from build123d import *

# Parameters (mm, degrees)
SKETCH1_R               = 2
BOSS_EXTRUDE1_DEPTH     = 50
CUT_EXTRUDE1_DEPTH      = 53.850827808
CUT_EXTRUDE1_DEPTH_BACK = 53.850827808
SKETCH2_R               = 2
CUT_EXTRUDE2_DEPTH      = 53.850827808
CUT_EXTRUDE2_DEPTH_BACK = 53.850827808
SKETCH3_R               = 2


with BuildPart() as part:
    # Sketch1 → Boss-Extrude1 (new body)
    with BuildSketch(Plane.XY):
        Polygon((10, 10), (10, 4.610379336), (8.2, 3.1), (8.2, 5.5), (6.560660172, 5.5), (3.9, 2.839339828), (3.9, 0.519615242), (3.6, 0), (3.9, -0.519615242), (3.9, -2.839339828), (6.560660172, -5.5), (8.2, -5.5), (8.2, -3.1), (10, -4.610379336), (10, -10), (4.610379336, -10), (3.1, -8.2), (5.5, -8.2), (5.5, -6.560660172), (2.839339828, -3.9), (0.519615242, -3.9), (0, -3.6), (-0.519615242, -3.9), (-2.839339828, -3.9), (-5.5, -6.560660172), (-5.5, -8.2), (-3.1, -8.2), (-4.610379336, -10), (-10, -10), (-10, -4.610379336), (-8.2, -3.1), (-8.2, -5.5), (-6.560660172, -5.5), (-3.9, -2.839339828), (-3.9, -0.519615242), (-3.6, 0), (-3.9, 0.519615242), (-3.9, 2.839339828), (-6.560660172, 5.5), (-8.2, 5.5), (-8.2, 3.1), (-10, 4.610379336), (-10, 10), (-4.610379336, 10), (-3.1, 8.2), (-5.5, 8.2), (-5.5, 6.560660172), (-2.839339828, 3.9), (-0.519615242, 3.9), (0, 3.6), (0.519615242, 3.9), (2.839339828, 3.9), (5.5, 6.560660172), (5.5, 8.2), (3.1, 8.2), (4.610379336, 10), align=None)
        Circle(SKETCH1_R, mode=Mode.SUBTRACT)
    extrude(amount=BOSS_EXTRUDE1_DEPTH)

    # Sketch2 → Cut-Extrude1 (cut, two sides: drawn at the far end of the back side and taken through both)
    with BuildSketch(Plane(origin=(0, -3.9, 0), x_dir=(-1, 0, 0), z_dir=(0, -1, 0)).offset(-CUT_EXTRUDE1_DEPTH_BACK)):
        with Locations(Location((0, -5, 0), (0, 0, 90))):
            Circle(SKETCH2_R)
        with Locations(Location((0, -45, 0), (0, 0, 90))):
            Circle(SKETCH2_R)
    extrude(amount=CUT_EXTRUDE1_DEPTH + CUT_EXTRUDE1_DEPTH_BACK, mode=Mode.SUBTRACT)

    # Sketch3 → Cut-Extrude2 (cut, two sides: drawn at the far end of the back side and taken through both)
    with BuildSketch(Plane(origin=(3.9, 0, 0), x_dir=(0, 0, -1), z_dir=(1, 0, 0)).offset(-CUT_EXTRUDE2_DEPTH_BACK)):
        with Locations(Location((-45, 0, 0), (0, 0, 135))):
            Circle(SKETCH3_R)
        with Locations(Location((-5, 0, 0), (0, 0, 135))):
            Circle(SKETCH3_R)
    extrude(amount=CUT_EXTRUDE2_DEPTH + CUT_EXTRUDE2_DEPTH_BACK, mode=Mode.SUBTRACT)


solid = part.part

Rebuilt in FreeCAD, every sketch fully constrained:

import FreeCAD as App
import Part
import Sketcher
Q = App.Units.Quantity

doc = App.newDocument("Part")
body = doc.addObject("PartDesign::Body", "Body")

# Sketch on XY plane
sketch1 = body.newObject("Sketcher::SketchObject", "Sketch")
sketch1.AttachmentSupport = (doc.getObject("XY_Plane"), [""])
sketch1.MapMode = "FlatFace"
sketch1.addGeometry(Part.LineSegment(App.Vector(10, 4.610379, 0), App.Vector(10, 10, 0)), False)
sketch1.addGeometry(Part.LineSegment(App.Vector(10, 10, 0), App.Vector(4.610379, 10, 0)), False)
sketch1.addGeometry(Part.LineSegment(App.Vector(4.610379, 10, 0), App.Vector(3.1, 8.2, 0)), False)
sketch1.addGeometry(Part.LineSegment(App.Vector(3.1, 8.2, 0), App.Vector(5.5, 8.2, 0)), False)
sketch1.addGeometry(Part.LineSegment(App.Vector(5.5, 8.2, 0), App.Vector(5.5, 6.56066, 0)), False)
sketch1.addGeometry(Part.LineSegment(App.Vector(5.5, 6.56066, 0), App.Vector(2.83934, 3.9, 0)), False)
sketch1.addGeometry(Part.LineSegment(App.Vector(2.83934, 3.9, 0), App.Vector(0.519615, 3.9, 0)), False)
sketch1.addGeometry(Part.LineSegment(App.Vector(0.519615, 3.9, 0), App.Vector(0, 3.6, 0)), False)
sketch1.addGeometry(Part.LineSegment(App.Vector(0, 3.6, 0), App.Vector(-0.519615, 3.9, 0)), False)
sketch1.addGeometry(Part.LineSegment(App.Vector(-0.519615, 3.9, 0), App.Vector(-2.83934, 3.9, 0)), False)
sketch1.addGeometry(Part.LineSegment(App.Vector(-2.83934, 3.9, 0), App.Vector(-5.5, 6.56066, 0)), False)
sketch1.addGeometry(Part.LineSegment(App.Vector(-5.5, 6.56066, 0), App.Vector(-5.5, 8.2, 0)), False)
sketch1.addGeometry(Part.LineSegment(App.Vector(-5.5, 8.2, 0), App.Vector(-3.1, 8.2, 0)), False)
sketch1.addGeometry(Part.LineSegment(App.Vector(-3.1, 8.2, 0), App.Vector(-4.610379, 10, 0)), False)
sketch1.addGeometry(Part.LineSegment(App.Vector(-4.610379, 10, 0), App.Vector(-10, 10, 0)), False)
sketch1.addGeometry(Part.LineSegment(App.Vector(-10, 10, 0), App.Vector(-10, 4.610379, 0)), False)
sketch1.addGeometry(Part.LineSegment(App.Vector(-10, 4.610379, 0), App.Vector(-8.2, 3.1, 0)), False)
sketch1.addGeometry(Part.LineSegment(App.Vector(-8.2, 3.1, 0), App.Vector(-8.2, 5.5, 0)), False)
sketch1.addGeometry(Part.LineSegment(App.Vector(-8.2, 5.5, 0), App.Vector(-6.56066, 5.5, 0)), False)
sketch1.addGeometry(Part.LineSegment(App.Vector(-6.56066, 5.5, 0), App.Vector(-3.9, 2.83934, 0)), False)
sketch1.addGeometry(Part.LineSegment(App.Vector(-3.9, 2.83934, 0), App.Vector(-3.9, 0.519615, 0)), False)
sketch1.addGeometry(Part.LineSegment(App.Vector(-3.9, 0.519615, 0), App.Vector(-3.6, 0, 0)), False)
sketch1.addGeometry(Part.LineSegment(App.Vector(-3.6, 0, 0), App.Vector(-3.9, -0.519615, 0)), False)
sketch1.addGeometry(Part.LineSegment(App.Vector(-3.9, -0.519615, 0), App.Vector(-3.9, -2.83934, 0)), False)
sketch1.addGeometry(Part.LineSegment(App.Vector(-3.9, -2.83934, 0), App.Vector(-6.56066, -5.5, 0)), False)
sketch1.addGeometry(Part.LineSegment(App.Vector(-6.56066, -5.5, 0), App.Vector(-8.2, -5.5, 0)), False)
sketch1.addGeometry(Part.LineSegment(App.Vector(-8.2, -5.5, 0), App.Vector(-8.2, -3.1, 0)), False)
sketch1.addGeometry(Part.LineSegment(App.Vector(-8.2, -3.1, 0), App.Vector(-10, -4.610379, 0)), False)
sketch1.addGeometry(Part.LineSegment(App.Vector(-10, -4.610379, 0), App.Vector(-10, -10, 0)), False)
sketch1.addGeometry(Part.LineSegment(App.Vector(-10, -10, 0), App.Vector(-4.610379, -10, 0)), False)
sketch1.addGeometry(Part.LineSegment(App.Vector(-4.610379, -10, 0), App.Vector(-3.1, -8.2, 0)), False)
sketch1.addGeometry(Part.LineSegment(App.Vector(-3.1, -8.2, 0), App.Vector(-5.5, -8.2, 0)), False)
sketch1.addGeometry(Part.LineSegment(App.Vector(-5.5, -8.2, 0), App.Vector(-5.5, -6.56066, 0)), False)
sketch1.addGeometry(Part.LineSegment(App.Vector(-5.5, -6.56066, 0), App.Vector(-2.83934, -3.9, 0)), False)
sketch1.addGeometry(Part.LineSegment(App.Vector(-2.83934, -3.9, 0), App.Vector(-0.519615, -3.9, 0)), False)
sketch1.addGeometry(Part.LineSegment(App.Vector(-0.519615, -3.9, 0), App.Vector(0, -3.6, 0)), False)
sketch1.addGeometry(Part.LineSegment(App.Vector(0, -3.6, 0), App.Vector(0.519615, -3.9, 0)), False)
sketch1.addGeometry(Part.LineSegment(App.Vector(0.519615, -3.9, 0), App.Vector(2.83934, -3.9, 0)), False)
sketch1.addGeometry(Part.LineSegment(App.Vector(2.83934, -3.9, 0), App.Vector(5.5, -6.56066, 0)), False)
sketch1.addGeometry(Part.LineSegment(App.Vector(5.5, -6.56066, 0), App.Vector(5.5, -8.2, 0)), False)
sketch1.addGeometry(Part.LineSegment(App.Vector(5.5, -8.2, 0), App.Vector(3.1, -8.2, 0)), False)
sketch1.addGeometry(Part.LineSegment(App.Vector(3.1, -8.2, 0), App.Vector(4.610379, -10, 0)), False)
sketch1.addGeometry(Part.LineSegment(App.Vector(4.610379, -10, 0), App.Vector(10, -10, 0)), False)
sketch1.addGeometry(Part.LineSegment(App.Vector(10, -10, 0), App.Vector(10, -4.610379, 0)), False)
sketch1.addGeometry(Part.LineSegment(App.Vector(10, -4.610379, 0), App.Vector(8.2, -3.1, 0)), False)
sketch1.addGeometry(Part.LineSegment(App.Vector(8.2, -3.1, 0), App.Vector(8.2, -5.5, 0)), False)
sketch1.addGeometry(Part.LineSegment(App.Vector(8.2, -5.5, 0), App.Vector(6.56066, -5.5, 0)), False)
sketch1.addGeometry(Part.LineSegment(App.Vector(6.56066, -5.5, 0), App.Vector(3.9, -2.83934, 0)), False)
sketch1.addGeometry(Part.LineSegment(App.Vector(3.9, -2.83934, 0), App.Vector(3.9, -0.519615, 0)), False)
sketch1.addGeometry(Part.LineSegment(App.Vector(3.9, -0.519615, 0), App.Vector(3.6, 0, 0)), False)
sketch1.addGeometry(Part.LineSegment(App.Vector(3.6, 0, 0), App.Vector(3.9, 0.519615, 0)), False)
sketch1.addGeometry(Part.LineSegment(App.Vector(3.9, 0.519615, 0), App.Vector(3.9, 2.83934, 0)), False)
sketch1.addGeometry(Part.LineSegment(App.Vector(3.9, 2.83934, 0), App.Vector(6.56066, 5.5, 0)), False)
sketch1.addGeometry(Part.LineSegment(App.Vector(6.56066, 5.5, 0), App.Vector(8.2, 5.5, 0)), False)
sketch1.addGeometry(Part.LineSegment(App.Vector(8.2, 5.5, 0), App.Vector(8.2, 3.1, 0)), False)
sketch1.addGeometry(Part.LineSegment(App.Vector(8.2, 3.1, 0), App.Vector(10, 4.610379, 0)), False)
sketch1.addGeometry(Part.Circle(App.Vector(0, 0, 0), App.Vector(0, 0, 1), 2), False)
sketch1.addConstraint(Sketcher.Constraint("Coincident", 0, 2, 1, 1))
sketch1.addConstraint(Sketcher.Constraint("Coincident", 1, 2, 2, 1))
sketch1.addConstraint(Sketcher.Constraint("Coincident", 2, 2, 3, 1))
sketch1.addConstraint(Sketcher.Constraint("Coincident", 3, 2, 4, 1))
sketch1.addConstraint(Sketcher.Constraint("Coincident", 4, 2, 5, 1))
sketch1.addConstraint(Sketcher.Constraint("Coincident", 5, 2, 6, 1))
sketch1.addConstraint(Sketcher.Constraint("Coincident", 6, 2, 7, 1))
sketch1.addConstraint(Sketcher.Constraint("Coincident", 7, 2, 8, 1))
sketch1.addConstraint(Sketcher.Constraint("Coincident", 8, 2, 9, 1))
sketch1.addConstraint(Sketcher.Constraint("Coincident", 9, 2, 10, 1))
sketch1.addConstraint(Sketcher.Constraint("Coincident", 10, 2, 11, 1))
sketch1.addConstraint(Sketcher.Constraint("Coincident", 11, 2, 12, 1))
sketch1.addConstraint(Sketcher.Constraint("Coincident", 12, 2, 13, 1))
sketch1.addConstraint(Sketcher.Constraint("Coincident", 13, 2, 14, 1))
sketch1.addConstraint(Sketcher.Constraint("Coincident", 14, 2, 15, 1))
sketch1.addConstraint(Sketcher.Constraint("Coincident", 15, 2, 16, 1))
sketch1.addConstraint(Sketcher.Constraint("Coincident", 16, 2, 17, 1))
sketch1.addConstraint(Sketcher.Constraint("Coincident", 17, 2, 18, 1))
sketch1.addConstraint(Sketcher.Constraint("Coincident", 18, 2, 19, 1))
sketch1.addConstraint(Sketcher.Constraint("Coincident", 19, 2, 20, 1))
sketch1.addConstraint(Sketcher.Constraint("Coincident", 20, 2, 21, 1))
sketch1.addConstraint(Sketcher.Constraint("Coincident", 21, 2, 22, 1))
sketch1.addConstraint(Sketcher.Constraint("Coincident", 22, 2, 23, 1))
sketch1.addConstraint(Sketcher.Constraint("Coincident", 23, 2, 24, 1))
sketch1.addConstraint(Sketcher.Constraint("Coincident", 24, 2, 25, 1))
sketch1.addConstraint(Sketcher.Constraint("Coincident", 25, 2, 26, 1))
sketch1.addConstraint(Sketcher.Constraint("Coincident", 26, 2, 27, 1))
sketch1.addConstraint(Sketcher.Constraint("Coincident", 27, 2, 28, 1))
sketch1.addConstraint(Sketcher.Constraint("Coincident", 28, 2, 29, 1))
sketch1.addConstraint(Sketcher.Constraint("Coincident", 29, 2, 30, 1))
sketch1.addConstraint(Sketcher.Constraint("Coincident", 30, 2, 31, 1))
sketch1.addConstraint(Sketcher.Constraint("Coincident", 31, 2, 32, 1))
sketch1.addConstraint(Sketcher.Constraint("Coincident", 32, 2, 33, 1))
sketch1.addConstraint(Sketcher.Constraint("Coincident", 33, 2, 34, 1))
sketch1.addConstraint(Sketcher.Constraint("Coincident", 34, 2, 35, 1))
sketch1.addConstraint(Sketcher.Constraint("Coincident", 35, 2, 36, 1))
sketch1.addConstraint(Sketcher.Constraint("Coincident", 36, 2, 37, 1))
sketch1.addConstraint(Sketcher.Constraint("Coincident", 37, 2, 38, 1))
sketch1.addConstraint(Sketcher.Constraint("Coincident", 38, 2, 39, 1))
sketch1.addConstraint(Sketcher.Constraint("Coincident", 39, 2, 40, 1))
sketch1.addConstraint(Sketcher.Constraint("Coincident", 40, 2, 41, 1))
sketch1.addConstraint(Sketcher.Constraint("Coincident", 41, 2, 42, 1))
sketch1.addConstraint(Sketcher.Constraint("Coincident", 42, 2, 43, 1))
sketch1.addConstraint(Sketcher.Constraint("Coincident", 43, 2, 44, 1))
sketch1.addConstraint(Sketcher.Constraint("Coincident", 44, 2, 45, 1))
sketch1.addConstraint(Sketcher.Constraint("Coincident", 45, 2, 46, 1))
sketch1.addConstraint(Sketcher.Constraint("Coincident", 46, 2, 47, 1))
sketch1.addConstraint(Sketcher.Constraint("Coincident", 47, 2, 48, 1))
sketch1.addConstraint(Sketcher.Constraint("Coincident", 48, 2, 49, 1))
sketch1.addConstraint(Sketcher.Constraint("Coincident", 49, 2, 50, 1))
sketch1.addConstraint(Sketcher.Constraint("Coincident", 50, 2, 51, 1))
sketch1.addConstraint(Sketcher.Constraint("Coincident", 51, 2, 52, 1))
sketch1.addConstraint(Sketcher.Constraint("Coincident", 52, 2, 53, 1))
sketch1.addConstraint(Sketcher.Constraint("Coincident", 53, 2, 54, 1))
sketch1.addConstraint(Sketcher.Constraint("Coincident", 54, 2, 55, 1))
sketch1.addConstraint(Sketcher.Constraint("Coincident", 55, 2, 0, 1))
sketch1.addConstraint(Sketcher.Constraint("Vertical", 0))
sketch1.addConstraint(Sketcher.Constraint("Horizontal", 1))
sketch1.addConstraint(Sketcher.Constraint("Horizontal", 3))
sketch1.addConstraint(Sketcher.Constraint("Vertical", 4))
sketch1.addConstraint(Sketcher.Constraint("Horizontal", 6))
sketch1.addConstraint(Sketcher.Constraint("Horizontal", 9))
sketch1.addConstraint(Sketcher.Constraint("Vertical", 11))
sketch1.addConstraint(Sketcher.Constraint("Horizontal", 12))
sketch1.addConstraint(Sketcher.Constraint("Horizontal", 14))
sketch1.addConstraint(Sketcher.Constraint("Vertical", 15))
sketch1.addConstraint(Sketcher.Constraint("Vertical", 17))
sketch1.addConstraint(Sketcher.Constraint("Horizontal", 18))
sketch1.addConstraint(Sketcher.Constraint("Vertical", 20))
sketch1.addConstraint(Sketcher.Constraint("Vertical", 23))
sketch1.addConstraint(Sketcher.Constraint("Horizontal", 25))
sketch1.addConstraint(Sketcher.Constraint("Vertical", 26))
sketch1.addConstraint(Sketcher.Constraint("Vertical", 28))
sketch1.addConstraint(Sketcher.Constraint("Horizontal", 29))
sketch1.addConstraint(Sketcher.Constraint("Horizontal", 31))
sketch1.addConstraint(Sketcher.Constraint("Vertical", 32))
sketch1.addConstraint(Sketcher.Constraint("Horizontal", 34))
sketch1.addConstraint(Sketcher.Constraint("Horizontal", 37))
sketch1.addConstraint(Sketcher.Constraint("Vertical", 39))
sketch1.addConstraint(Sketcher.Constraint("Horizontal", 40))
sketch1.addConstraint(Sketcher.Constraint("Horizontal", 42))
sketch1.addConstraint(Sketcher.Constraint("Vertical", 43))
sketch1.addConstraint(Sketcher.Constraint("Vertical", 45))
sketch1.addConstraint(Sketcher.Constraint("Horizontal", 46))
sketch1.addConstraint(Sketcher.Constraint("Vertical", 48))
sketch1.addConstraint(Sketcher.Constraint("Vertical", 51))
sketch1.addConstraint(Sketcher.Constraint("Horizontal", 53))
sketch1.addConstraint(Sketcher.Constraint("Vertical", 54))
sketch1.addConstraint(Sketcher.Constraint("Coincident", 56, 3, -1, 1))
sketch1.addConstraint(Sketcher.Constraint("Symmetric", 0, 2, 28, 2, -1, 1))
sketch1.addConstraint(Sketcher.Constraint("Symmetric", 2, 2, 30, 2, -1, 1))
sketch1.addConstraint(Sketcher.Constraint("Symmetric", 4, 2, 32, 2, -1, 1))
sketch1.addConstraint(Sketcher.Constraint("Symmetric", 5, 2, 33, 2, -1, 1))
sketch1.addConstraint(Sketcher.Constraint("Symmetric", 7, 2, 35, 2, -1, 1))
sketch1.addConstraint(Sketcher.Constraint("Symmetric", 8, 2, 36, 2, -1, 1))
sketch1.addConstraint(Sketcher.Constraint("Symmetric", 10, 2, 38, 2, -1, 1))
sketch1.addConstraint(Sketcher.Constraint("Symmetric", 12, 2, 40, 2, -1, 1))
sketch1.addConstraint(Sketcher.Constraint("Symmetric", 13, 2, 41, 2, -1, 1))
sketch1.addConstraint(Sketcher.Constraint("Symmetric", 15, 2, 43, 2, -1, 1))
sketch1.addConstraint(Sketcher.Constraint("Symmetric", 16, 2, 44, 2, -1, 1))
sketch1.addConstraint(Sketcher.Constraint("Symmetric", 18, 2, 46, 2, -1, 1))
sketch1.addConstraint(Sketcher.Constraint("Symmetric", 19, 2, 47, 2, -1, 1))
sketch1.addConstraint(Sketcher.Constraint("Symmetric", 21, 2, 49, 2, -1, 1))
sketch1.addConstraint(Sketcher.Constraint("Symmetric", 22, 2, 50, 2, -1, 1))
sketch1.addConstraint(Sketcher.Constraint("Symmetric", 24, 2, 52, 2, -1, 1))
sketch1.addConstraint(Sketcher.Constraint("Symmetric", 26, 2, 54, 2, -1, 1))
sketch1.addConstraint(Sketcher.Constraint("Symmetric", 6, 2, 8, 2, -2))
sketch1.addConstraint(Sketcher.Constraint("Symmetric", 4, 2, 10, 2, -2))
sketch1.addConstraint(Sketcher.Constraint("Symmetric", 2, 2, 12, 2, -2))
sketch1.addConstraint(Sketcher.Constraint("Symmetric", 1, 2, 13, 2, -2))
sketch1.addConstraint(Sketcher.Constraint("Symmetric", 27, 2, 43, 2, -2))
sketch1.addConstraint(Sketcher.Constraint("Symmetric", 26, 2, 44, 2, -2))
sketch1.addConstraint(Sketcher.Constraint("Symmetric", 24, 2, 46, 2, -2))
sketch1.addConstraint(Sketcher.Constraint("Symmetric", 23, 2, 47, 2, -2))
sketch1.addConstraint(Sketcher.Constraint("PointOnObject", 7, 2, -2))
sketch1.addConstraint(Sketcher.Constraint("PointOnObject", 21, 2, -1))
sketch1.addConstraint(Sketcher.Constraint("Perpendicular", 5, 10))
sketch1.addConstraint(Sketcher.Constraint("Perpendicular", 2, 16))
sketch1.addConstraint(Sketcher.Constraint("Parallel", 10, 19))
sketch1.addConstraint(Sketcher.Constraint("Perpendicular", 7, 21))
sketch1.addConstraint(Sketcher.Constraint("Perpendicular", 8, 22))
sketch1.addConstraint(Sketcher.Constraint("Perpendicular", 19, 24))
sketch1.addConstraint(Sketcher.Constraint("Perpendicular", 16, 30))
sketch1.addConstraint(Sketcher.Constraint("Perpendicular", 21, 35))
sketch1.addConstraint(Sketcher.Constraint("Perpendicular", 33, 38))
sketch1.addConstraint(Sketcher.Constraint("Perpendicular", 35, 49))
sketch1.addConstraint(Sketcher.Constraint("Perpendicular", 47, 52))
sketch1.addConstraint(Sketcher.Constraint("Perpendicular", 41, 55))
sketch1.addConstraint(Sketcher.Constraint("Equal", 42, 0))
sketch1.addConstraint(Sketcher.Constraint("Equal", 53, 4))
sketch1.addConstraint(Sketcher.Constraint("Equal", 40, 17))
sketch1.addConstraint(Sketcher.Constraint("Equal", 37, 20))
sketch1.addConstraint(Sketcher.Constraint("Equal", 13, 16))
sketch1.addConstraint(Sketcher.Constraint("Equal", 10, 19))
sketch1.addConstraint(Sketcher.Constraint("Equal", 8, 21))
sketch1.addConstraint(Sketcher.Constraint("Diameter", 56, 4.0))
sketch1.addConstraint(Sketcher.Constraint("Angle", 2, Q("-130 deg")))
sketch1.addConstraint(Sketcher.Constraint("Angle", 7, Q("-150 deg")))
sketch1.addConstraint(Sketcher.Constraint("DistanceX", 3, 1, 3, 2, 2.4))
sketch1.addConstraint(Sketcher.Constraint("DistanceX", -1, 1, 0, 2, 10.0))
sketch1.addConstraint(Sketcher.Constraint("Distance", 7, 0.6))
sketch1.addConstraint(Sketcher.Constraint("DistanceX", -1, 1, 2, 2, 3.1))
sketch1.addConstraint(Sketcher.Constraint("DistanceY", -1, 1, 2, 2, 8.2))
sketch1.addConstraint(Sketcher.Constraint("DistanceY", -1, 1, 5, 2, 3.9))
sketch1.addConstraint(Sketcher.Constraint("DistanceX", 18, 1, 18, 2, 1.63934))
pad1 = body.newObject("PartDesign::Pad", "Pad")
pad1.Profile = sketch1
pad1.Length = 50

# Sketch on XZ plane
sketch2 = body.newObject("Sketcher::SketchObject", "Sketch001")
sketch2.AttachmentSupport = (doc.getObject("XZ_Plane"), [""])
sketch2.MapMode = "FlatFace"
sketch2.AttachmentOffset = App.Placement(App.Vector(0, 0, 3.9), App.Rotation())
sketch2.addGeometry(Part.Circle(App.Vector(0, 5, 0), App.Vector(0, 0, 1), 2), False)
sketch2.addGeometry(Part.Circle(App.Vector(0, 45, 0), App.Vector(0, 0, 1), 2), False)
sketch2.addConstraint(Sketcher.Constraint("Equal", 0, 1))
sketch2.addConstraint(Sketcher.Constraint("PointOnObject", 0, 3, -2))
sketch2.addConstraint(Sketcher.Constraint("PointOnObject", 1, 3, -2))
sketch2.addConstraint(Sketcher.Constraint("Diameter", 0, 4.0))
sketch2.addConstraint(Sketcher.Constraint("DistanceY", -1, 1, 0, 3, 5.0))
sketch2.addConstraint(Sketcher.Constraint("DistanceY", -1, 1, 1, 3, 45.0))
pocket1 = body.newObject("PartDesign::Pocket", "Pocket")
pocket1.Profile = sketch2
pocket1.Type = "ThroughAll"
pocket1.Midplane = True

# Sketch on YZ plane
sketch3 = body.newObject("Sketcher::SketchObject", "Sketch002")
sketch3.AttachmentSupport = (doc.getObject("YZ_Plane"), [""])
sketch3.MapMode = "FlatFace"
sketch3.AttachmentOffset = App.Placement(App.Vector(0, 0, 3.9), App.Rotation())
sketch3.addGeometry(Part.Circle(App.Vector(0, 45, 0), App.Vector(0, 0, 1), 2), False)
sketch3.addGeometry(Part.Circle(App.Vector(0, 5, 0), App.Vector(0, 0, 1), 2), False)
sketch3.addConstraint(Sketcher.Constraint("Equal", 0, 1))
sketch3.addConstraint(Sketcher.Constraint("PointOnObject", 0, 3, -2))
sketch3.addConstraint(Sketcher.Constraint("PointOnObject", 1, 3, -2))
sketch3.addConstraint(Sketcher.Constraint("Diameter", 0, 4.0))
sketch3.addConstraint(Sketcher.Constraint("DistanceY", -1, 1, 0, 3, 45.0))
sketch3.addConstraint(Sketcher.Constraint("DistanceY", -1, 1, 1, 3, 5.0))
pocket2 = body.newObject("PartDesign::Pocket", "Pocket001")
pocket2.Profile = sketch3
pocket2.Type = "ThroughAll"
pocket2.Midplane = True

doc.recompute()
